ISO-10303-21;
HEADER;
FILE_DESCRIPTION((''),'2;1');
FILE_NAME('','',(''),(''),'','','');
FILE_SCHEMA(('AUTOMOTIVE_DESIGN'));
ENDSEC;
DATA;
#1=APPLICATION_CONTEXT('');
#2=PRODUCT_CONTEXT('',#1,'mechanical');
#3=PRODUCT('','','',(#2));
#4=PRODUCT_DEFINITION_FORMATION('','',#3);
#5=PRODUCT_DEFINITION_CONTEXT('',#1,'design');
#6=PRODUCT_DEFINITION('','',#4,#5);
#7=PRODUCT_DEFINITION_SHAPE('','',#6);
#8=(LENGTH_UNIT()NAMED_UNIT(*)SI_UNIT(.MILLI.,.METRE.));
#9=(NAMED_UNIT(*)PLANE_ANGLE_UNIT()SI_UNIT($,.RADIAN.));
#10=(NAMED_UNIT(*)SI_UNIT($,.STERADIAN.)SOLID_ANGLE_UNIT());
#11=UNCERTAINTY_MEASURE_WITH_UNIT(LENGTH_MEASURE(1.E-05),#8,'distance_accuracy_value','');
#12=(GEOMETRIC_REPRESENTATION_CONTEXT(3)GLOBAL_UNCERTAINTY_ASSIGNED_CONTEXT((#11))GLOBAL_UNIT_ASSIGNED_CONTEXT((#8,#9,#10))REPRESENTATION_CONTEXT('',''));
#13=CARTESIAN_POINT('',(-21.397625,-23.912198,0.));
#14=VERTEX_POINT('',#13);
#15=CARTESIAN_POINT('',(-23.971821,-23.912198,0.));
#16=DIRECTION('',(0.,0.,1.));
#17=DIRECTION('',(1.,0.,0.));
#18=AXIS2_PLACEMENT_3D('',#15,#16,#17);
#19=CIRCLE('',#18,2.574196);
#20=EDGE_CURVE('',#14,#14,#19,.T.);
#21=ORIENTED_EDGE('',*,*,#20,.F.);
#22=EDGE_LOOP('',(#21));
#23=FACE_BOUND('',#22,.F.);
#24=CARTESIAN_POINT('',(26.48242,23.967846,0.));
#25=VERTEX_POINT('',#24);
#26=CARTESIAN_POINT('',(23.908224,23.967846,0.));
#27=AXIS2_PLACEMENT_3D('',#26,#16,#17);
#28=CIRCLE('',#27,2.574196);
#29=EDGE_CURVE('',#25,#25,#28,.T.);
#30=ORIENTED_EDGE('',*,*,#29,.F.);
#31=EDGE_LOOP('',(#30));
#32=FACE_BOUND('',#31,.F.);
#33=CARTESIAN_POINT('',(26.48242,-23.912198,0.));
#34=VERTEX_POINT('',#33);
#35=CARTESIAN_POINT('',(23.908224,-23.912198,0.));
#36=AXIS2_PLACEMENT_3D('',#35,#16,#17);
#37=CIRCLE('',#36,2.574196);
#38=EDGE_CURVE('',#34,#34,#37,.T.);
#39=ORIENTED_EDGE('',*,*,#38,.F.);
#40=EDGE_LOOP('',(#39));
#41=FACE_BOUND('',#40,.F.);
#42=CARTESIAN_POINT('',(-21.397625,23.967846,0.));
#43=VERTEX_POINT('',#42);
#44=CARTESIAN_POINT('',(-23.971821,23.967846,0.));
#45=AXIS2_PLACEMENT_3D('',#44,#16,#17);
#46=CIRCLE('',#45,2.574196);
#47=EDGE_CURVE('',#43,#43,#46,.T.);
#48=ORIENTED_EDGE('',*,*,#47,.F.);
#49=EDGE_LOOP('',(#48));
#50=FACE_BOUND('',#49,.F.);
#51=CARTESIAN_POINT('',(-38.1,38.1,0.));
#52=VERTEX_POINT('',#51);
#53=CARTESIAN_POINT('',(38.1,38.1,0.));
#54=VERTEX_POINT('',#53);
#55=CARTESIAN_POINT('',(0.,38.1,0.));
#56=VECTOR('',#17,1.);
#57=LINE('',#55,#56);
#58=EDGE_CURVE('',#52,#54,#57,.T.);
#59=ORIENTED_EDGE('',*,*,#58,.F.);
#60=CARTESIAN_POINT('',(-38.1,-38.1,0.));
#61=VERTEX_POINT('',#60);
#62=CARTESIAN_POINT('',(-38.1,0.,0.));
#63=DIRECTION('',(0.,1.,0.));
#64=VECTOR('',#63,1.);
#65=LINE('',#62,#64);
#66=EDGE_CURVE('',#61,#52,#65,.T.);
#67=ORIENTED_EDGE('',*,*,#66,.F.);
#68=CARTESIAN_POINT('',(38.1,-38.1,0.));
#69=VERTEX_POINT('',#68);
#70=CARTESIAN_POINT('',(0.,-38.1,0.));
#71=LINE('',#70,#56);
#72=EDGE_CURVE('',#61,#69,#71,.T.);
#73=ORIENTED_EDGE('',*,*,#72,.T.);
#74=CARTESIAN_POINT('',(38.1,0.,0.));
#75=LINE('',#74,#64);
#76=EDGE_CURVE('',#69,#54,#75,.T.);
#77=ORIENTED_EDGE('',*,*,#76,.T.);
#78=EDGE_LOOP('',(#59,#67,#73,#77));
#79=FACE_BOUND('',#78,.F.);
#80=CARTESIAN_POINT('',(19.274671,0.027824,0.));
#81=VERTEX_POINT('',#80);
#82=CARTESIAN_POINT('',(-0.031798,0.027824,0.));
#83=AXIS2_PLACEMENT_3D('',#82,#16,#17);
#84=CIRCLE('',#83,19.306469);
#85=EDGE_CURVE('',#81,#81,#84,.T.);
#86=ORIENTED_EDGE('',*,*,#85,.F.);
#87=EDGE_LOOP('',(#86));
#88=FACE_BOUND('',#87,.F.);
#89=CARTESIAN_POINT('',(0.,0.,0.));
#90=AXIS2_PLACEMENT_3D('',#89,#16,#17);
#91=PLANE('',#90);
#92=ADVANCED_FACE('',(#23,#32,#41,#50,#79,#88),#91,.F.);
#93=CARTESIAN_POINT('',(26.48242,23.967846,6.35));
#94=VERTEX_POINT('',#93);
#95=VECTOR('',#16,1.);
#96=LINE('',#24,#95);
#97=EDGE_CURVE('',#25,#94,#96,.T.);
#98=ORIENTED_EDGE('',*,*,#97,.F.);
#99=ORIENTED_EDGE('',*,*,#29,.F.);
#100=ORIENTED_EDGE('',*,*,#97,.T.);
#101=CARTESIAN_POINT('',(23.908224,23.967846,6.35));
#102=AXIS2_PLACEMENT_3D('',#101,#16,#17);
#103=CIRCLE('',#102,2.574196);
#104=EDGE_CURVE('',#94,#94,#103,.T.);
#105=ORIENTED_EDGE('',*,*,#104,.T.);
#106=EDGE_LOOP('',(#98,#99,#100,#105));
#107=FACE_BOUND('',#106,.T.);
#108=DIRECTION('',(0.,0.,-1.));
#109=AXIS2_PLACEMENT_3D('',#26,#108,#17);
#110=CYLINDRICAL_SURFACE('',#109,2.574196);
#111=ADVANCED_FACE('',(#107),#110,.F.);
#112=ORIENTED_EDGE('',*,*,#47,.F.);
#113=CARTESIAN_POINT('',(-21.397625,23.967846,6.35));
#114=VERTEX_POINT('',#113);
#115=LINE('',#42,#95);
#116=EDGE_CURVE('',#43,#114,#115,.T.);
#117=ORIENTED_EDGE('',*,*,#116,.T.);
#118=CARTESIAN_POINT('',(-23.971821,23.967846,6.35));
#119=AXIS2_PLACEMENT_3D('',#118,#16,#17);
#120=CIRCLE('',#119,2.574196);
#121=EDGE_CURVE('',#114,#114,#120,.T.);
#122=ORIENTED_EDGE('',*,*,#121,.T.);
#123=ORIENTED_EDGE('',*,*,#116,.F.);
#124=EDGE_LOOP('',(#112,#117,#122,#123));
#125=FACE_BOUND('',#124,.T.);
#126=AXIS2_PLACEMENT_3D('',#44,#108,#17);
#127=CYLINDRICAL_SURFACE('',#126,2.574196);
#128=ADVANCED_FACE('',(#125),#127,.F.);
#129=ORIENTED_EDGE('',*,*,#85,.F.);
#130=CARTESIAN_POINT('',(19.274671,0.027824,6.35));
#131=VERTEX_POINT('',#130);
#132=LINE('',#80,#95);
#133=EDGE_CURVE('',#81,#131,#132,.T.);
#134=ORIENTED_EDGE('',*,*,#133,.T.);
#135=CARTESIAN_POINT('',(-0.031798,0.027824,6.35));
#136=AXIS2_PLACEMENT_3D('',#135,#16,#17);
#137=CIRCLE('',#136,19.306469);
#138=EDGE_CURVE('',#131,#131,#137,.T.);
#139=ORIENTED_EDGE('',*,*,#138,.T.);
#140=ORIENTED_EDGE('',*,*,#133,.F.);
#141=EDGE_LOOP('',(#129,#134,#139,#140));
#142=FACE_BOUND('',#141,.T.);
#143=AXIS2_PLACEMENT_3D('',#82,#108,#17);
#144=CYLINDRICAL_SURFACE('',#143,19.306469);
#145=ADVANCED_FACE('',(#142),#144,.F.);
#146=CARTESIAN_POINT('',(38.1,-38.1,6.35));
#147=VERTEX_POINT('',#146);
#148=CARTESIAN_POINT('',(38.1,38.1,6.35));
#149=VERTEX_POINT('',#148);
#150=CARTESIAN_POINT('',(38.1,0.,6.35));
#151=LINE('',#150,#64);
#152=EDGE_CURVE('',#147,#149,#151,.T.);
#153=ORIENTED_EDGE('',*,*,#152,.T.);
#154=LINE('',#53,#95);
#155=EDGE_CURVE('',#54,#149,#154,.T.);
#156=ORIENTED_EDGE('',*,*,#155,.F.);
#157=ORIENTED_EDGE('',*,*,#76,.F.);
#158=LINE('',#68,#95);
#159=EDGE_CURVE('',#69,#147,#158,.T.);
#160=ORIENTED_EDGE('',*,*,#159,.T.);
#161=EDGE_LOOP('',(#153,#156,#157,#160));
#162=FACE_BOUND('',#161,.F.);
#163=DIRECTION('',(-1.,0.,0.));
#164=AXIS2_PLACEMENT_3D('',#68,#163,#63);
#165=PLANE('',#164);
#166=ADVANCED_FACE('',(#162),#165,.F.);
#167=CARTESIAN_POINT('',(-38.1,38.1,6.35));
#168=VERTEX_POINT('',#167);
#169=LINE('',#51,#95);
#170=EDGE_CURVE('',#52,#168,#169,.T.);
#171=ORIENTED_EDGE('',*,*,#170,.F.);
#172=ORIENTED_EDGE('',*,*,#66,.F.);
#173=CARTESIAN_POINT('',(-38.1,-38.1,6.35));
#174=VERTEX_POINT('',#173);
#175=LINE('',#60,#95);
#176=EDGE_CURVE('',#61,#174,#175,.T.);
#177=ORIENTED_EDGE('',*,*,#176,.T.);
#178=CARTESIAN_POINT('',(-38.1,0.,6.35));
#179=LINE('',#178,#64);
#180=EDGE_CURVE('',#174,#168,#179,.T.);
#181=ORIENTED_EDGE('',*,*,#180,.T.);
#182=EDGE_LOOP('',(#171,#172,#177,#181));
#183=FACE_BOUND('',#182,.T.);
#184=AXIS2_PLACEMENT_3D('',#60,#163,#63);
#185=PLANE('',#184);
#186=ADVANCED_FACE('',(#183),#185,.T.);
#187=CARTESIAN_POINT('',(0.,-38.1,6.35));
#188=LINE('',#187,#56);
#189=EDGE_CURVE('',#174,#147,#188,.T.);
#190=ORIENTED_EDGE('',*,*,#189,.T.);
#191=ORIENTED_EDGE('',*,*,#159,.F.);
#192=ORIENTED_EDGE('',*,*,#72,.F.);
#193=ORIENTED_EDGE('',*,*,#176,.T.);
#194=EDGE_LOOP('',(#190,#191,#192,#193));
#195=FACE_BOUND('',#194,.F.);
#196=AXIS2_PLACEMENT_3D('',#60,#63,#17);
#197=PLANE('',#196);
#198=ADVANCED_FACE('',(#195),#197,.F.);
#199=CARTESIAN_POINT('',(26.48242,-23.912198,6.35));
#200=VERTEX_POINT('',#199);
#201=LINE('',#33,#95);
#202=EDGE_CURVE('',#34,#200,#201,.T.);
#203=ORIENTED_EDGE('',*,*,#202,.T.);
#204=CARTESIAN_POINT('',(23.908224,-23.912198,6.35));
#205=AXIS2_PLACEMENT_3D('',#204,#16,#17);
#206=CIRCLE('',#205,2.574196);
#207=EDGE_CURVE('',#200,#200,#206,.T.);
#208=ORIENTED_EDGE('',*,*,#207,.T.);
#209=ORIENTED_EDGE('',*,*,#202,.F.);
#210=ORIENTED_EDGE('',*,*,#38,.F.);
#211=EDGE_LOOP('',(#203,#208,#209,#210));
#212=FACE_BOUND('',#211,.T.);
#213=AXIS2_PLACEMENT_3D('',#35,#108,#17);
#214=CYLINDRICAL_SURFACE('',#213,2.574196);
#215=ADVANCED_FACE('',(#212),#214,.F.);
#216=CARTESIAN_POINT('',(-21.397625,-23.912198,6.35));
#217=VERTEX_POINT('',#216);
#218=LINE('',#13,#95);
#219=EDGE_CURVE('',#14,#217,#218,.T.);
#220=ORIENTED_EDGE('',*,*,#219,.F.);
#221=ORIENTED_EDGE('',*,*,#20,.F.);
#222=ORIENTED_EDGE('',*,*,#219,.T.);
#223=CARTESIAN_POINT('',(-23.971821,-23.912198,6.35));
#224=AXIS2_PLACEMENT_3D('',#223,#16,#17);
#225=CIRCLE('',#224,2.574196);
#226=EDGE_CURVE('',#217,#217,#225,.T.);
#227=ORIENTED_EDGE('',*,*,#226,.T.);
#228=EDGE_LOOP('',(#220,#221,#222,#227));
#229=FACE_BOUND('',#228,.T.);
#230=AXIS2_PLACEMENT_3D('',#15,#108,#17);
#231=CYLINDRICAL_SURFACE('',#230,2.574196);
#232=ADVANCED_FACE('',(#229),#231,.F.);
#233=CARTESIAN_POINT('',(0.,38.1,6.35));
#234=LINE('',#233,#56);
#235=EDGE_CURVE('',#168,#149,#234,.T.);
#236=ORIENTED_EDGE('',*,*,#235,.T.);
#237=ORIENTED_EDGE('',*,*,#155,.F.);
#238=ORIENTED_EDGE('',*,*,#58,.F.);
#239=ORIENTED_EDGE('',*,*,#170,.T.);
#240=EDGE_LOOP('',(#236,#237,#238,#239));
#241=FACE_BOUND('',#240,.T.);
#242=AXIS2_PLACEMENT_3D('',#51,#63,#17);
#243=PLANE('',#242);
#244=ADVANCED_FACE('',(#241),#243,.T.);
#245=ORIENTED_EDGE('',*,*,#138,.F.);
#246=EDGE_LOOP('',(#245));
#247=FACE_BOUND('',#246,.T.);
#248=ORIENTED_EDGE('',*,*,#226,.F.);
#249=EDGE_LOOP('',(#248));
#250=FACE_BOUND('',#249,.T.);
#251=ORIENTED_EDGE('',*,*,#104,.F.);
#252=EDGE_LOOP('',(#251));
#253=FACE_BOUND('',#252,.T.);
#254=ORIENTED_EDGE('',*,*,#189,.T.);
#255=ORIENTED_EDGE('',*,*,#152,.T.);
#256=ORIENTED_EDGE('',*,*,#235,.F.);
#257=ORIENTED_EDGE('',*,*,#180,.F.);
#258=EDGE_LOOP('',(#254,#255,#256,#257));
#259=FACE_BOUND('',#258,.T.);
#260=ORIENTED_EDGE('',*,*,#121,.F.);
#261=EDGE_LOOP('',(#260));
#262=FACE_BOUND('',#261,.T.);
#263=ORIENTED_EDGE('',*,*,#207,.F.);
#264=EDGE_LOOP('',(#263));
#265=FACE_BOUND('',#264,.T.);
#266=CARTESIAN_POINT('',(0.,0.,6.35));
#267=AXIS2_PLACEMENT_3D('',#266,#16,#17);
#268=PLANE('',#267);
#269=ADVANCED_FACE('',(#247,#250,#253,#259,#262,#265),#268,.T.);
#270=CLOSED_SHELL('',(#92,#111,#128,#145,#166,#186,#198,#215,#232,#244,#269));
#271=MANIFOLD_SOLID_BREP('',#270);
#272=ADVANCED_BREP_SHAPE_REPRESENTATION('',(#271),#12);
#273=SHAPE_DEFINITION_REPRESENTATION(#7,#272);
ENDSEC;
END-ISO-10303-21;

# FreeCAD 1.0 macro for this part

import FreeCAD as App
import Part
import Sketcher
from FreeCAD import Vector
Q = App.Units.Quantity


def add_polygon(sketch, points):
    """Adds a closed chain of lines whose ends are joined by coincident constraints."""
    first, n = sketch.GeometryCount, len(points)
    for a, b in zip(points, points[1:] + points[:1]):
        sketch.addGeometry(Part.LineSegment(App.Vector(*a, 0), App.Vector(*b, 0)), False)
    for i in range(n):
        sketch.addConstraint(Sketcher.Constraint("Coincident", first + i, 2, first + (i + 1) % n, 1))

doc = App.newDocument("Part")
params = doc.addObject("Spreadsheet::Sheet", "Params")
for row, (alias, value) in enumerate([
    ("sketch1_width", "3 in"),
    ("pad1_length", "0.25 in"),
], start=1):
    params.set(f"A{row}", alias)
    params.set(f"B{row}", "=" + value)
    params.setAlias(f"B{row}", alias)

body = doc.addObject("PartDesign::Body", "Body")

# Sketch on XY plane
sketch1 = body.newObject("Sketcher::SketchObject", "Sketch")
sketch1.AttachmentSupport = (doc.getObject("XY_Plane"), [""])
sketch1.MapMode = "FlatFace"
add_polygon(sketch1, [(-38.1, 38.1), (-38.1, -38.1), (38.1, -38.1), (38.1, 38.1)])  # lines 0-3
sketch1.addGeometry(Part.Circle(Vector(-24, -23.9, 0), Vector(0, 0, 1), 2.6), False)  # 4
sketch1.addGeometry(Part.Circle(Vector(23.9, -23.9, 0), Vector(0, 0, 1), 2.6), False)  # 5
sketch1.addGeometry(Part.Circle(Vector(0, 0, 0), Vector(0, 0, 1), 19.3), False)  # 6
sketch1.addGeometry(Part.Circle(Vector(-24, 24, 0), Vector(0, 0, 1), 2.6), False)  # 7
sketch1.addGeometry(Part.Circle(Vector(23.9, 24, 0), Vector(0, 0, 1), 2.6), False)  # 8
sketch1.addConstraint([
    Sketcher.Constraint("Vertical", 0),
    Sketcher.Constraint("Horizontal", 1),
    Sketcher.Constraint("Vertical", 2),
    Sketcher.Constraint("Horizontal", 3),
    Sketcher.Constraint("Equal", 4, 5),
    Sketcher.Constraint("Equal", 5, 7),
    Sketcher.Constraint("Equal", 7, 8),
    Sketcher.Constraint("Symmetric", 0, 2, 2, 2, -1, 1),
    Sketcher.Constraint("Horizontal", 4, 3, 5, 3),
    Sketcher.Constraint("Horizontal", 7, 3, 8, 3),
    Sketcher.Constraint("Vertical", 4, 3, 7, 3),
    Sketcher.Constraint("Vertical", 5, 3, 8, 3),
    Sketcher.Constraint("Equal", 3, 0),
    Sketcher.Constraint("DistanceX", 1, 1, 1, 2, Q("3 in")),
    Sketcher.Constraint("Diameter", 4, Q("5.148392 mm")),
    Sketcher.Constraint("Diameter", 6, Q("38.612938 mm")),
    Sketcher.Constraint("DistanceY", 4, 3, -1, 1, Q("23.912198 mm")),
    Sketcher.Constraint("DistanceX", 6, 3, 1, 2, Q("38.131798 mm")),
    Sketcher.Constraint("DistanceX", 4, 3, -1, 1, Q("23.971821 mm")),
    Sketcher.Constraint("DistanceX", 6, 3, 5, 3, Q("23.940022 mm")),
    Sketcher.Constraint("DistanceY", 5, 3, 6, 3, Q("23.940022 mm")),
    Sketcher.Constraint("DistanceY", -1, 1, 7, 3, Q("23.967846 mm")),
])
sketch1.setExpression("Constraints[17]", "Params.sketch1_width")
pad1 = body.newObject("PartDesign::Pad", "Pad")
pad1.Profile = sketch1
pad1.setExpression("Length", "Params.pad1_length")

doc.recompute()
